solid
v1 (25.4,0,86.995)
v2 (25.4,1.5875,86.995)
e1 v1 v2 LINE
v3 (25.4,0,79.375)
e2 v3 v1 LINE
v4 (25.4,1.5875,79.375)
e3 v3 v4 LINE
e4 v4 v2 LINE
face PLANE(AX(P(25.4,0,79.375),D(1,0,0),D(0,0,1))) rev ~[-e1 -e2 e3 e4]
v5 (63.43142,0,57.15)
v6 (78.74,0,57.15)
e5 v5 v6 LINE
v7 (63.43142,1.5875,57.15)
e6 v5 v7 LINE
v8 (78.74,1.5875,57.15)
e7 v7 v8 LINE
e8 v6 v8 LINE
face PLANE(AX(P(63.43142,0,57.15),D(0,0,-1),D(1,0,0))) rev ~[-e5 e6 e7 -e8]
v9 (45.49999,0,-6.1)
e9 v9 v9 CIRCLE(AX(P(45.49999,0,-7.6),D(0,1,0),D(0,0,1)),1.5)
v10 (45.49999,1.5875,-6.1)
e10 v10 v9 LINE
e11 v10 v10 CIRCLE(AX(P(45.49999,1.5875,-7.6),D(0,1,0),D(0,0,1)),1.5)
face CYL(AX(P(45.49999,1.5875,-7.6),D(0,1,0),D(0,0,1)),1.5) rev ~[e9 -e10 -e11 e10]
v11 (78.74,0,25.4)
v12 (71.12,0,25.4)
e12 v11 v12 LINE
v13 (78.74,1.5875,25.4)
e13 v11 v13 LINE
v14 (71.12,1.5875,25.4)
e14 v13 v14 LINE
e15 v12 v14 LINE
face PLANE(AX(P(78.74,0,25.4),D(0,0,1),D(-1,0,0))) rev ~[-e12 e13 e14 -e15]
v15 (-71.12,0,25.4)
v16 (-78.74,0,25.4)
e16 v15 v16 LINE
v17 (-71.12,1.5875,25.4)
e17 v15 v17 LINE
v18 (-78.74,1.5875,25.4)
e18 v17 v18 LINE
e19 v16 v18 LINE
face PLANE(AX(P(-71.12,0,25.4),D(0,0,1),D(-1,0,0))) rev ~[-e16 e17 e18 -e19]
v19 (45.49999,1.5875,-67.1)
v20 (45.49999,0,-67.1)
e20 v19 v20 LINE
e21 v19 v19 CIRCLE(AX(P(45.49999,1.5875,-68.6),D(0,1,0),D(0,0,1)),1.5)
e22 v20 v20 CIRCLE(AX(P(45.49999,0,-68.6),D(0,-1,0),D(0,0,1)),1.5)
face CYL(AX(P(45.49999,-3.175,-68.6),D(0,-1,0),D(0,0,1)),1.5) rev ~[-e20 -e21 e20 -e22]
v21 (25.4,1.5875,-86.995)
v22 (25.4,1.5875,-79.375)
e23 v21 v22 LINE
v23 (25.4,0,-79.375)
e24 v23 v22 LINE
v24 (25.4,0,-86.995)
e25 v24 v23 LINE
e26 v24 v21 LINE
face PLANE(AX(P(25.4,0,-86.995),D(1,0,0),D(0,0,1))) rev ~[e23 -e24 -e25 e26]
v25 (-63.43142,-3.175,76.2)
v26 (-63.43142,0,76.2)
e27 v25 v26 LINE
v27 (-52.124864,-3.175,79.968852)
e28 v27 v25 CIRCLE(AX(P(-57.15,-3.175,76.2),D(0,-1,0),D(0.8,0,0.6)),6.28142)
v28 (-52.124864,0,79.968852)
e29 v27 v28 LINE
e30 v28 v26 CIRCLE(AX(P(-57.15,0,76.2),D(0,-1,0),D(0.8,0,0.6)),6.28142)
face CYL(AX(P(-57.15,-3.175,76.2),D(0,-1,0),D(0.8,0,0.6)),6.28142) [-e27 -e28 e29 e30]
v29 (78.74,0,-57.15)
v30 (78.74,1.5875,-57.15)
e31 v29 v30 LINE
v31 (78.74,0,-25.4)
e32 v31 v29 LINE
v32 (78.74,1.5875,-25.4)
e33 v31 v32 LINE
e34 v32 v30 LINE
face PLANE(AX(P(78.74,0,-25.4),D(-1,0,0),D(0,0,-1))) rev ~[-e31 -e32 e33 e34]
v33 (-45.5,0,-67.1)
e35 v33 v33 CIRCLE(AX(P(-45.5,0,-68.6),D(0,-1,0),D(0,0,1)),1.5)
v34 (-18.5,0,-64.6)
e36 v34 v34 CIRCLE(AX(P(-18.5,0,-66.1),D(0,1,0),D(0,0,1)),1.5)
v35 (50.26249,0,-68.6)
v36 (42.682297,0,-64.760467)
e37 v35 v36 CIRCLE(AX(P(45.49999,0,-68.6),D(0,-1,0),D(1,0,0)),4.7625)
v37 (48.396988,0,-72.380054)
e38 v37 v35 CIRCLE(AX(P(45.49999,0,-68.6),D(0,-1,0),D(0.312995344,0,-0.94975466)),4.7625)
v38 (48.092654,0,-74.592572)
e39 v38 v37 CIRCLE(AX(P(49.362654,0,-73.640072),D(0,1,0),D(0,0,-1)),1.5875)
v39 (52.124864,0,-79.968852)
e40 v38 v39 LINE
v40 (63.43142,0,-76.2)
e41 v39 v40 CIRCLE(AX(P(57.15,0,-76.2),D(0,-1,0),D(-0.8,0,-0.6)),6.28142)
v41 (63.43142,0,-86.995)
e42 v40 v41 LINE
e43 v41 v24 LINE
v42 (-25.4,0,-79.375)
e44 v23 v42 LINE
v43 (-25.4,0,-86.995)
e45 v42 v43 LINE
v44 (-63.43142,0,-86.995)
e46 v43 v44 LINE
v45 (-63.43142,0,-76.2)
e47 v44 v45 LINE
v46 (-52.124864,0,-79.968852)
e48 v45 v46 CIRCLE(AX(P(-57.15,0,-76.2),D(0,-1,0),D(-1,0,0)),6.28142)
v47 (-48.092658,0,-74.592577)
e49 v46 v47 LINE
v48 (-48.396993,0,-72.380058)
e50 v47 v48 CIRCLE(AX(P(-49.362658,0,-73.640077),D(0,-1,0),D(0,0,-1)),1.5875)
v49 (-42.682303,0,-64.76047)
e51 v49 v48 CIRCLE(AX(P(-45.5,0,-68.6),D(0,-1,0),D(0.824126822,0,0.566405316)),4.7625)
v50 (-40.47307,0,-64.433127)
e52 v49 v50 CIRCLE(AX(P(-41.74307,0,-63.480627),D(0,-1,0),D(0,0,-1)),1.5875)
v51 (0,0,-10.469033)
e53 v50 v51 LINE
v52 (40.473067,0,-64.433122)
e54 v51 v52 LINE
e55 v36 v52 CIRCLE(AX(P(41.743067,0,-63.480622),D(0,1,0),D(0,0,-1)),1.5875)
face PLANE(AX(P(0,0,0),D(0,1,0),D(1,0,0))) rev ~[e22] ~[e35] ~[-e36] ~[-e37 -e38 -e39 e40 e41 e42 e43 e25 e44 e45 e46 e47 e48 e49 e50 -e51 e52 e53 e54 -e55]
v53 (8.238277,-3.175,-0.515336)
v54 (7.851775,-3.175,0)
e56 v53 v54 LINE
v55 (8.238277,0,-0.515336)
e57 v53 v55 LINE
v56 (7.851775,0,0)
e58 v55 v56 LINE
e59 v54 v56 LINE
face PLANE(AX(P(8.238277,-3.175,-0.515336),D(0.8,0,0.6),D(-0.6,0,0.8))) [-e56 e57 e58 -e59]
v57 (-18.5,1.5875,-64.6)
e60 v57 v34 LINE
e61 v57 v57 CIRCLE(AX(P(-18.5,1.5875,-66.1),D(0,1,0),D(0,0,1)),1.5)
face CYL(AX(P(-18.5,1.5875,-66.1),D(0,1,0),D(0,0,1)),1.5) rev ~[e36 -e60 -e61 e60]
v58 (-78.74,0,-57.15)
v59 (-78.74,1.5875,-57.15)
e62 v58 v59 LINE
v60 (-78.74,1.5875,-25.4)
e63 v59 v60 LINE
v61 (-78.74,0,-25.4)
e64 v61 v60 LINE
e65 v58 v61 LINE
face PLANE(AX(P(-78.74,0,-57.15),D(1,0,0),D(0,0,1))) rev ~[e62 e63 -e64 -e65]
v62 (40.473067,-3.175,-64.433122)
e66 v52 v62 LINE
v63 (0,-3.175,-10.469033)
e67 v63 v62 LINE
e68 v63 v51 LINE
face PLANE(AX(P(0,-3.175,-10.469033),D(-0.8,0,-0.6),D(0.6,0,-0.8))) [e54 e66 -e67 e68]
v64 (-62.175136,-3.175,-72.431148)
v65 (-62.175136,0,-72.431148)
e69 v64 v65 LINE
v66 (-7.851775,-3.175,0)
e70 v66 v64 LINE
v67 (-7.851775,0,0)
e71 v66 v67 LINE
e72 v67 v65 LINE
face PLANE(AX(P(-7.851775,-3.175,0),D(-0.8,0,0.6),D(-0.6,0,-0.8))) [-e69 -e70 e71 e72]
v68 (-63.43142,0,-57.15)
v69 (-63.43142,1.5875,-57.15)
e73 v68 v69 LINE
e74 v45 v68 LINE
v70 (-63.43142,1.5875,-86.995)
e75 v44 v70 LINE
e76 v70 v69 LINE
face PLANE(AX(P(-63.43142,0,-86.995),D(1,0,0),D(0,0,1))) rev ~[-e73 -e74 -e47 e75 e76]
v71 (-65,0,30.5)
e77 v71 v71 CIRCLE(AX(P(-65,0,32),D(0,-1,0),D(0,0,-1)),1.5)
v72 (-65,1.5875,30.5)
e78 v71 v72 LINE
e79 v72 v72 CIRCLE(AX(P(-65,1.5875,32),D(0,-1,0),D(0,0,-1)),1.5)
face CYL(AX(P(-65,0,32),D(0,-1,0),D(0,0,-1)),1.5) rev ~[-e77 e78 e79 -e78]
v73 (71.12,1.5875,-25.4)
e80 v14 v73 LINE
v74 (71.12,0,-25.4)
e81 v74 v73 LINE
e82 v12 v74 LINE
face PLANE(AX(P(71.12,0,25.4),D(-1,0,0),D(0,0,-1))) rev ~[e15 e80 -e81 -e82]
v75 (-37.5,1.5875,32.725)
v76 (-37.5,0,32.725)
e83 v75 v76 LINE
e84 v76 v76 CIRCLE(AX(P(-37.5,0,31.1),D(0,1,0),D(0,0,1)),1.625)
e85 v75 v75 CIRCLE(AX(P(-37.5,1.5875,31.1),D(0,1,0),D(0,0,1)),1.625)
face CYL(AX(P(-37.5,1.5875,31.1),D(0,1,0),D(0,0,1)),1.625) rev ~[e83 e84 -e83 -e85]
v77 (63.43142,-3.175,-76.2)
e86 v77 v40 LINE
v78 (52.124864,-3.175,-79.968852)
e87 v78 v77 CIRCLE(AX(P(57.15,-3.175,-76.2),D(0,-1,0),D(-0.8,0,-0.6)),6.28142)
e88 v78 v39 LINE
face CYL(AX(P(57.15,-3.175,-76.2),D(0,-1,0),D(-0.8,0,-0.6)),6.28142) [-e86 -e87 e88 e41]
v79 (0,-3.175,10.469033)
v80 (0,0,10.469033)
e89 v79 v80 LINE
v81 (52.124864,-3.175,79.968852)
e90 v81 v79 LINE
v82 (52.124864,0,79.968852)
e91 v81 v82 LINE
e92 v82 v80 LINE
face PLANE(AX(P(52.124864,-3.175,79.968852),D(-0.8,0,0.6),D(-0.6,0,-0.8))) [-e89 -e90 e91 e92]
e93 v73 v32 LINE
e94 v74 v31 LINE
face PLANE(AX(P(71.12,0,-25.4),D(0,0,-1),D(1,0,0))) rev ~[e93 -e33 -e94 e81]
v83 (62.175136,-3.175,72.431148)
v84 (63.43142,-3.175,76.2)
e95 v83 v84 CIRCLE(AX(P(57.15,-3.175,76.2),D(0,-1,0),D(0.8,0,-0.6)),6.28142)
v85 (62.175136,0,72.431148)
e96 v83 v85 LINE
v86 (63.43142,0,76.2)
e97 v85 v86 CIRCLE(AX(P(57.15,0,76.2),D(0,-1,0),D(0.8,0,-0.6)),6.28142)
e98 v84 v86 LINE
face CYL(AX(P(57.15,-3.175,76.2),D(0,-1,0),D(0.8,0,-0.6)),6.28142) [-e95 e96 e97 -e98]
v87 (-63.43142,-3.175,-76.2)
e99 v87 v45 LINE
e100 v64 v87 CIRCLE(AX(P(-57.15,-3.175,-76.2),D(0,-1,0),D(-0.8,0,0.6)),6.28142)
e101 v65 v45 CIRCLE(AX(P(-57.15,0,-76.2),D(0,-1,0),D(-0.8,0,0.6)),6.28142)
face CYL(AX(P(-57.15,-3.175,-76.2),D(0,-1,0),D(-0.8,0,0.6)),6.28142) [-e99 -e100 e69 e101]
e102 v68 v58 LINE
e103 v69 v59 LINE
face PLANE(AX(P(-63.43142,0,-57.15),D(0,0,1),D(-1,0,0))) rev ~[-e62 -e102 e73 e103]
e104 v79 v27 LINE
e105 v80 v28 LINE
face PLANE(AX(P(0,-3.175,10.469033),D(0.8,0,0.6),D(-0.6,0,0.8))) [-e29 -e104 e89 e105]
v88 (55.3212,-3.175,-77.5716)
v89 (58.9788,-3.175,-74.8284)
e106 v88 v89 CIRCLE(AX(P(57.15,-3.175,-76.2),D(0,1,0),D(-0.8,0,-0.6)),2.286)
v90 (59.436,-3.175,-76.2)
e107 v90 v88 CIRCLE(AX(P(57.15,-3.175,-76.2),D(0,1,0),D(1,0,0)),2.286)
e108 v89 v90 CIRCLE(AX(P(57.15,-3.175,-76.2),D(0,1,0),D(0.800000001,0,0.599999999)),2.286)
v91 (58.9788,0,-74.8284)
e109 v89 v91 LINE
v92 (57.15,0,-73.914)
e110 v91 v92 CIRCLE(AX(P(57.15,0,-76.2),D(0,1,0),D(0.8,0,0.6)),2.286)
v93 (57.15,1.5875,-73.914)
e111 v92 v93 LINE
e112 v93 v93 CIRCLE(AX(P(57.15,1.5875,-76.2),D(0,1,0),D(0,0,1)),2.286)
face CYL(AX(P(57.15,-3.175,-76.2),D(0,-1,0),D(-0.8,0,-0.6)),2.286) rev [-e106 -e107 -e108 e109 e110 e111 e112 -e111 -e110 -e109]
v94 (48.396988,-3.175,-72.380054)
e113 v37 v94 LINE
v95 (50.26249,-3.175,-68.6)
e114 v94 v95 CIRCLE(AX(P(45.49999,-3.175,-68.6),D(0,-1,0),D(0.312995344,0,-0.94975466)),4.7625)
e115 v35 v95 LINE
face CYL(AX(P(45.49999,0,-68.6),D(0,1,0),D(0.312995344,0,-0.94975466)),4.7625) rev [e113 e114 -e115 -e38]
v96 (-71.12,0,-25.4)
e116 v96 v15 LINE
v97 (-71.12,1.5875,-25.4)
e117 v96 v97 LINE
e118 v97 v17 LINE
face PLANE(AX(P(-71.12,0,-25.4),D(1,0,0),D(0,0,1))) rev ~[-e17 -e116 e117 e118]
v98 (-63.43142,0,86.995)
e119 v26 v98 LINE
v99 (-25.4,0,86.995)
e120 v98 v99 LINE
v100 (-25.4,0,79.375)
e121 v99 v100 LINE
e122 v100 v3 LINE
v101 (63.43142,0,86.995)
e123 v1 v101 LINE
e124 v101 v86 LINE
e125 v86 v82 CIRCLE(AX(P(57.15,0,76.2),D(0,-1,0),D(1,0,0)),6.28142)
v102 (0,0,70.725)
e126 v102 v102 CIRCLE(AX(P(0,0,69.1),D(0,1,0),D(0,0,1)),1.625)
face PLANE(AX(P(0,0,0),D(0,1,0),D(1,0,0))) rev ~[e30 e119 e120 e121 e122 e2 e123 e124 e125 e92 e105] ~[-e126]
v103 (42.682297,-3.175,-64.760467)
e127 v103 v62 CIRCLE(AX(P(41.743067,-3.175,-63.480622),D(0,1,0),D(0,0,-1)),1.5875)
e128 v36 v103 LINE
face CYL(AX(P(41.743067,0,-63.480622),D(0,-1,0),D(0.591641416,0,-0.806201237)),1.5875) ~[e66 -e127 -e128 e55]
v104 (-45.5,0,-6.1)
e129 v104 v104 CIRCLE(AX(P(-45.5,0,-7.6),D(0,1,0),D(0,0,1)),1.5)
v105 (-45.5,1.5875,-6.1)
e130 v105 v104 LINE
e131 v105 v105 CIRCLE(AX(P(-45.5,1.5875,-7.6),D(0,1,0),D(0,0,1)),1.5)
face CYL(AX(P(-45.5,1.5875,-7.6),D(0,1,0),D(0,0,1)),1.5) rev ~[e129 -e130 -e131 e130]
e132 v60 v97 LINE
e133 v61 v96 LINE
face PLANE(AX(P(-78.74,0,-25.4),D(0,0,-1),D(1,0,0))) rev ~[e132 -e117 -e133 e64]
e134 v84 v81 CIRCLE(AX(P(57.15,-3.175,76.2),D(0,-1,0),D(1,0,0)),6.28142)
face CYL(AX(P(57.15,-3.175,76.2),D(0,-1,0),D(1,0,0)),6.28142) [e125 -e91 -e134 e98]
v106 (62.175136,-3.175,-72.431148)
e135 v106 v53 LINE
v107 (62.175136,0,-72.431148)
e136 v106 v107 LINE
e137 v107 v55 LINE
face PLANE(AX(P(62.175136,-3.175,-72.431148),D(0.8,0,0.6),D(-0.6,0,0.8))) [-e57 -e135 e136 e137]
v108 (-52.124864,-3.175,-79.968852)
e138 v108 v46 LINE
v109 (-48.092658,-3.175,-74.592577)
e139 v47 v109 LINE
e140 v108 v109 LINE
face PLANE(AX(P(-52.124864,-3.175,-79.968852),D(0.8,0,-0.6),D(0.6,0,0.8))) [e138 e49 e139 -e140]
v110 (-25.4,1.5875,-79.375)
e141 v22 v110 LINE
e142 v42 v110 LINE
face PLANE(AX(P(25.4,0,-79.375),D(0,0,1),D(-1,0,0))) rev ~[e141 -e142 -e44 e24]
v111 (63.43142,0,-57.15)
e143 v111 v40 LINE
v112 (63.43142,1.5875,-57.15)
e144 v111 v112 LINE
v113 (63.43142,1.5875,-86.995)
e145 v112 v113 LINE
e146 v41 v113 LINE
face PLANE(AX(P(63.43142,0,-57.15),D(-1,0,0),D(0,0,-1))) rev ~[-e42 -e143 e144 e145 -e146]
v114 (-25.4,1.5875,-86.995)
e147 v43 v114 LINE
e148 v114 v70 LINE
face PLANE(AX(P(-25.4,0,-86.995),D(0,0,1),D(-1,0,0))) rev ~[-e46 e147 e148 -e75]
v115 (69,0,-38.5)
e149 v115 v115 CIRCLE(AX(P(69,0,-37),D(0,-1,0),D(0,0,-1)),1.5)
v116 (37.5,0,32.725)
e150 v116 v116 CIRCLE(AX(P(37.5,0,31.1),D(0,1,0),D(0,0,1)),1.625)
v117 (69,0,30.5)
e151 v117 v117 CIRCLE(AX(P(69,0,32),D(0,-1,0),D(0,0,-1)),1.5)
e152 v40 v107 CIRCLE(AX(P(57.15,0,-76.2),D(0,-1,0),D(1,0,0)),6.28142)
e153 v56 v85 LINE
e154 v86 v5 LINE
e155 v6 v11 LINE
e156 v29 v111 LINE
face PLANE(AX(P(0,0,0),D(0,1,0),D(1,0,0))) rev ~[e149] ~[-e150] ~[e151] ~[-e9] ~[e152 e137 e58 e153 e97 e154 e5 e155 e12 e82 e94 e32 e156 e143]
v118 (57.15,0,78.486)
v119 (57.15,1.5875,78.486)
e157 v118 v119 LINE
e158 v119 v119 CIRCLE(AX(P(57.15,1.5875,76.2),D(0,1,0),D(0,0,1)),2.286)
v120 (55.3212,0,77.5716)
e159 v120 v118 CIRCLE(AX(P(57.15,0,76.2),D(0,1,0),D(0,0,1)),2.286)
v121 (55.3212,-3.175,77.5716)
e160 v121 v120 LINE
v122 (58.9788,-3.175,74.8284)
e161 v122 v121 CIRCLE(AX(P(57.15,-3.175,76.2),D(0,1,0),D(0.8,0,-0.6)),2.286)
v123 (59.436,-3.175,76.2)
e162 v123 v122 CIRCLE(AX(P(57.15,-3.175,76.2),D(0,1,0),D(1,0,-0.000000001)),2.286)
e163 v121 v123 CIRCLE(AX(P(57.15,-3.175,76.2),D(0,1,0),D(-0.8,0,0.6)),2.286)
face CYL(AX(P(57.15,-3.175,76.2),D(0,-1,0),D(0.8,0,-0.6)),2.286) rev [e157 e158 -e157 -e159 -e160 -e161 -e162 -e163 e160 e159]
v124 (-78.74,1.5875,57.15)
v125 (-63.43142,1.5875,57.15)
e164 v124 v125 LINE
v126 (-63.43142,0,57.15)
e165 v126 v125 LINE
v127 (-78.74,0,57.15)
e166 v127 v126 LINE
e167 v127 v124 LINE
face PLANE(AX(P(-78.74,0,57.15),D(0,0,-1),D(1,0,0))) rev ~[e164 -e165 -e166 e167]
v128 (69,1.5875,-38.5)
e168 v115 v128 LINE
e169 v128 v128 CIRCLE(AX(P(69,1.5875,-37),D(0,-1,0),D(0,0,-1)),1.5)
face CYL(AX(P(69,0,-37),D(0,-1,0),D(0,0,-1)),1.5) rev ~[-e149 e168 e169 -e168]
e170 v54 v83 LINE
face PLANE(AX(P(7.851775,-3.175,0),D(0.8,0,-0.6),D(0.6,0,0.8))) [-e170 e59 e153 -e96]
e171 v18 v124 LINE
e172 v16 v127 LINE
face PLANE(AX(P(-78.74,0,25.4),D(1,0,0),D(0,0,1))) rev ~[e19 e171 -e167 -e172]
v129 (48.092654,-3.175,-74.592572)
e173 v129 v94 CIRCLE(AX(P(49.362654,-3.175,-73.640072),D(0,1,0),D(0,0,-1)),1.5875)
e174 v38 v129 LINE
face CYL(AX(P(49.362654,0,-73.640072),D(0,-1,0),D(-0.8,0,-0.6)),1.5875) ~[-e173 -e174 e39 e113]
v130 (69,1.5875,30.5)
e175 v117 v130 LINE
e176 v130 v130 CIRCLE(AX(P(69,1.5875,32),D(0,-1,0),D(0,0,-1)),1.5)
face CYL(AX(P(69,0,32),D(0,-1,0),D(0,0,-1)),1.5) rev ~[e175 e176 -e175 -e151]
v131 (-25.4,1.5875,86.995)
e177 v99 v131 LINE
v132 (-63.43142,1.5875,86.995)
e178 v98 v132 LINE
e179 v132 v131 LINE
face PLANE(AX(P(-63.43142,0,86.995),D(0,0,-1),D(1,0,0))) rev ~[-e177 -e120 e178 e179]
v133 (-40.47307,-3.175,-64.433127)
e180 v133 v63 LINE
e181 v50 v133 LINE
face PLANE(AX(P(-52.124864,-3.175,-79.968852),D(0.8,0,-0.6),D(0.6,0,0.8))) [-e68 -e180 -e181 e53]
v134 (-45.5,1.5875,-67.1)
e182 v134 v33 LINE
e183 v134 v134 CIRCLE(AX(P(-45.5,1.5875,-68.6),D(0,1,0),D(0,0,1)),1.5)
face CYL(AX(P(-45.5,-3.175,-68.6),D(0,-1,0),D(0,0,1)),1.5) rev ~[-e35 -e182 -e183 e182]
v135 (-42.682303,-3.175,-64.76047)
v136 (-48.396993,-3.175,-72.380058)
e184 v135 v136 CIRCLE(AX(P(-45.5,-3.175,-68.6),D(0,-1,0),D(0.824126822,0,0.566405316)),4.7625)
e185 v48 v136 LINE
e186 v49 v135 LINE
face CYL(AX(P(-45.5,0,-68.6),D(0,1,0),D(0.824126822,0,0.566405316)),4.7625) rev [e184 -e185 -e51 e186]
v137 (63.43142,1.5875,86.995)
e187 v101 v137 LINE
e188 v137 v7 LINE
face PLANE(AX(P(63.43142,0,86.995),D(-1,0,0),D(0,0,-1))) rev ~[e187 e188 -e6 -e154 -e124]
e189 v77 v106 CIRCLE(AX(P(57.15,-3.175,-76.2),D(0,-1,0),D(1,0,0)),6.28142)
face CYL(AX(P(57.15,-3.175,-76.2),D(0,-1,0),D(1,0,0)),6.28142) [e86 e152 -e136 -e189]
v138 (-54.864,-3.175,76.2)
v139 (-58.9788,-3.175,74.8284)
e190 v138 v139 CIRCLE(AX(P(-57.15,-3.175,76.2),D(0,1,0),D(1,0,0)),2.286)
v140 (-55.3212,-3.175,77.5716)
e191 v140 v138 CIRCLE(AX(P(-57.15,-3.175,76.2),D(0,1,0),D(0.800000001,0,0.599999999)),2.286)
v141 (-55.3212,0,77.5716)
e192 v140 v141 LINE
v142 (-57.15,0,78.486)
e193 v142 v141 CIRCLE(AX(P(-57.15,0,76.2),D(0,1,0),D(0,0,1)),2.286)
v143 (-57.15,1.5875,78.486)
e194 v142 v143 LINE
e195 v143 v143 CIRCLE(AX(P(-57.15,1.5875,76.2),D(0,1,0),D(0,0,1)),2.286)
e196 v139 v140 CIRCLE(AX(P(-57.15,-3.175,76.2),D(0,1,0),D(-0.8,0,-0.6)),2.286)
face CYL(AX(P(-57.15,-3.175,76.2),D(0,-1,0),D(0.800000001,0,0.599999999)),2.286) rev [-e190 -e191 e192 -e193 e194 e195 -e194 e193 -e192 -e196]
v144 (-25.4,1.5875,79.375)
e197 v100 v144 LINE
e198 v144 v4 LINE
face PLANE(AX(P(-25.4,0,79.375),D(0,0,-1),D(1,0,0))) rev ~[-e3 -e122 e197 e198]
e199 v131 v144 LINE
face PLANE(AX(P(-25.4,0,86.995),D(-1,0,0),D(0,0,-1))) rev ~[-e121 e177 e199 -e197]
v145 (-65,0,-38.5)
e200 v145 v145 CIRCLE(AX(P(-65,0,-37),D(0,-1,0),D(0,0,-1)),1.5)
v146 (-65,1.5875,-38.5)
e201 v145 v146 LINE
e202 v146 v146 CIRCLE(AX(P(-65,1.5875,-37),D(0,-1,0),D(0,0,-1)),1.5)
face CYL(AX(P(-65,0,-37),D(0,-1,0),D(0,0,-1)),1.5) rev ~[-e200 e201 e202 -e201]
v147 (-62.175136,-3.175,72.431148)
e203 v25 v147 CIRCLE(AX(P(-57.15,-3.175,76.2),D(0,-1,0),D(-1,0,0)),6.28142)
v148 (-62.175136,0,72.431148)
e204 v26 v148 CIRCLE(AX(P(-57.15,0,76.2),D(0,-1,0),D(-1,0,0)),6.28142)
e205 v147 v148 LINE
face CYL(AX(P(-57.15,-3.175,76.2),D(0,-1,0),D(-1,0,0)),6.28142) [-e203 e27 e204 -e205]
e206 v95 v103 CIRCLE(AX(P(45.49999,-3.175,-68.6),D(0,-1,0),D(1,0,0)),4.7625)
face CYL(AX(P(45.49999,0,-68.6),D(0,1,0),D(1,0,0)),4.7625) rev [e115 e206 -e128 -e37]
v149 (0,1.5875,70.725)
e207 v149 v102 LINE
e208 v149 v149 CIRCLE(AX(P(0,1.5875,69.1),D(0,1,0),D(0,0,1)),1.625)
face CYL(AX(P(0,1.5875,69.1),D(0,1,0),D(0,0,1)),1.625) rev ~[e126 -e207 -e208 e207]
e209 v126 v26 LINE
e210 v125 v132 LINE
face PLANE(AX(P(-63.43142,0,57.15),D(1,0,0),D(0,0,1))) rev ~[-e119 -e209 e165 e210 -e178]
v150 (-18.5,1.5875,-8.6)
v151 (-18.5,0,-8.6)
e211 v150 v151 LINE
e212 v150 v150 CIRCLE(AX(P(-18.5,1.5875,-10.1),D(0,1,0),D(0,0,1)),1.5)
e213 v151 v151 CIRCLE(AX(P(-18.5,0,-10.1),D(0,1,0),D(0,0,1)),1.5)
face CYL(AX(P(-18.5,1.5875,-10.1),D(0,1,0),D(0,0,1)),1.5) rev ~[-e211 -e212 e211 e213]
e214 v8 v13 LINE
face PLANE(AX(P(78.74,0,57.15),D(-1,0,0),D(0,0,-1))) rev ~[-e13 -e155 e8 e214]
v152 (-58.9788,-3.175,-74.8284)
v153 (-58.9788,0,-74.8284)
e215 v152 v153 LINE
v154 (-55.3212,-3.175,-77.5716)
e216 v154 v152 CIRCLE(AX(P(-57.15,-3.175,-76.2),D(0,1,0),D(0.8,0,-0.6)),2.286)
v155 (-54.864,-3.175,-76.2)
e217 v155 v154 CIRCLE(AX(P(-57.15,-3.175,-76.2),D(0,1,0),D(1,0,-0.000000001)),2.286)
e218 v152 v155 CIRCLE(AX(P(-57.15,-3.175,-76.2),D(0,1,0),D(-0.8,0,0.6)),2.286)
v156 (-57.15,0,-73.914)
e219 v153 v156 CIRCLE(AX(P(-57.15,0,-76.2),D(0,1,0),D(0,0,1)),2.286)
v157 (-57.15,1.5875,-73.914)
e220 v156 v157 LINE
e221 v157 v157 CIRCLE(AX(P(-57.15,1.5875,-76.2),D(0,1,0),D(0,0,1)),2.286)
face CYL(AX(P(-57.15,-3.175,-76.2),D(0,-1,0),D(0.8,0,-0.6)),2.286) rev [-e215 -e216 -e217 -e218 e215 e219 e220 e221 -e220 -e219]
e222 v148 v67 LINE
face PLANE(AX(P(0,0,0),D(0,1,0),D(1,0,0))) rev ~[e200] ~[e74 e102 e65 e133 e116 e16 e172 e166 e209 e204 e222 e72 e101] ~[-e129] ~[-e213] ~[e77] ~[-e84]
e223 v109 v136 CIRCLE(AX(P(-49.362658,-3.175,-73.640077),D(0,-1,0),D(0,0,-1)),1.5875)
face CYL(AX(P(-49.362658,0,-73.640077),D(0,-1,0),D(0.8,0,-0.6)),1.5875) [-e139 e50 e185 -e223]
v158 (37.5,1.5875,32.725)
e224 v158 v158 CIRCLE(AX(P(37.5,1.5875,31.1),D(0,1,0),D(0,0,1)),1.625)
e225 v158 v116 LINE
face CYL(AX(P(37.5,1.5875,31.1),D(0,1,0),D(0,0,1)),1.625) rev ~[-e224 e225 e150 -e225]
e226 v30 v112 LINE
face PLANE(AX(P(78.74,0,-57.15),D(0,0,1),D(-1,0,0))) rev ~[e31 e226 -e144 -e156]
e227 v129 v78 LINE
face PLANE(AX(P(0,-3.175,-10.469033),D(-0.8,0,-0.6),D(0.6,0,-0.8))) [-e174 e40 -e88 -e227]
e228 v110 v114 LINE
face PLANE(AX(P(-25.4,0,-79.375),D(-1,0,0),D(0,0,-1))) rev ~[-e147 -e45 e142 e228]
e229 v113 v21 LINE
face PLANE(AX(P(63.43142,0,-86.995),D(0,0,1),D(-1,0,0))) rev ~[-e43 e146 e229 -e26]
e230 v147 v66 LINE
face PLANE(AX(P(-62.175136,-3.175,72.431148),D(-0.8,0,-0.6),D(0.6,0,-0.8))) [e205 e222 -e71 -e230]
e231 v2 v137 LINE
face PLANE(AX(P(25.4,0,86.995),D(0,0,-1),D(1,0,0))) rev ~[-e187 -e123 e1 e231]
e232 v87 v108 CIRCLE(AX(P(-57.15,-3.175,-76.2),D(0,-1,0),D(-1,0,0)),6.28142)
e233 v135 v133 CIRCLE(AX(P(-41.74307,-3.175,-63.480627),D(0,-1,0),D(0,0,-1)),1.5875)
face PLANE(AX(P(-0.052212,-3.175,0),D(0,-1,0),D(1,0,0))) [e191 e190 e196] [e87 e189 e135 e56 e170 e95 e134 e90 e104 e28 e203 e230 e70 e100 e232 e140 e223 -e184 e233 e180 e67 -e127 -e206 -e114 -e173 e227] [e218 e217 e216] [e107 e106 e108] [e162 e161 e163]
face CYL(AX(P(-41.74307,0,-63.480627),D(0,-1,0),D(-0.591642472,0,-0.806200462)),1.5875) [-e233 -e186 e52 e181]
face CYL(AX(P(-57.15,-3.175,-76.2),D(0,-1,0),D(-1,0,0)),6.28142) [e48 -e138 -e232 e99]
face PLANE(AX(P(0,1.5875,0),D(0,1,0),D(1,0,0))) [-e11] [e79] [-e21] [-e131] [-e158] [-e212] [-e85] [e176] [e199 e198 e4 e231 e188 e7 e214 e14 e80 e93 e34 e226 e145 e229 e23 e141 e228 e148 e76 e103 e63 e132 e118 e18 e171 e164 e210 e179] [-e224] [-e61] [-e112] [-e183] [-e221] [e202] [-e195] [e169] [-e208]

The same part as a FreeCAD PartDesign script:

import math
import FreeCAD as App
import Part
import Sketcher

V = App.Vector
Q = App.Units.Quantity


def edges_at(feature, points):
    """Names of the edges that pass closest to the given points."""
    edges = feature.Shape.Edges
    near = lambda p: min(range(len(edges)), key=lambda i: edges[i].distToShape(Part.Vertex(*p))[0])
    return sorted({f"Edge{near(p) + 1}" for p in points})


def add_polygon(sketch, points):
    """Adds a closed chain of lines whose ends are joined by coincident constraints."""
    first, n = sketch.GeometryCount, len(points)
    for a, b in zip(points, points[1:] + points[:1]):
        sketch.addGeometry(Part.LineSegment(App.Vector(*a, 0), App.Vector(*b, 0)), False)
    for i in range(n):
        sketch.addConstraint(Sketcher.Constraint("Coincident", first + i, 2, first + (i + 1) % n, 1))

doc = App.newDocument("Part")
params = doc.addObject("Spreadsheet::Sheet", "Params")
for row, (alias, value) in enumerate([
    ("sketch1_diameter", "0.18 in"),
    ("sketch1_width", "2 in"),
    ("sketch1_width2", "0.3 in"),
    ("sketch1_height", "1.25 in"),
    ("sketch1_height2", "1.175 in"),
    ("pad1_length", "0.0625 in"),
    ("sketch15_radius", "0.09 in"),
    ("pad2_length", "0.125 in"),
    ("sketch16_radius", "0.1875 in"),
    ("pocket14_length", "0.125 in"),
    ("fillet_radius", "0.0625 in"),
], start=1):
    params.set(f"A{row}", alias)
    params.set(f"B{row}", "=" + value)
    params.setAlias(f"B{row}", alias)

body = doc.addObject("PartDesign::Body", "Body")

# Sketch on XZ plane
sketch1 = body.newObject("Sketcher::SketchObject", "Sketch")
sketch1.AttachmentSupport = (doc.getObject("XZ_Plane"), [""])
sketch1.MapMode = "FlatFace"
add_polygon(sketch1, [(-25.4, -79.4), (-25.4, -87), (-63.4, -87), (-63.4, -57.1), (-78.7, -57.1), (-78.7, -25.4), (-71.1, -25.4), (-71.1, 25.4), (-78.7, 25.4), (-78.7, 57.1), (-63.4, 57.1), (-63.4, 87), (-25.4, 87), (-25.4, 79.4), (25.4, 79.4), (25.4, 87), (63.4, 87), (63.4, 57.1), (78.7, 57.1), (78.7, 25.4), (71.1, 25.4), (71.1, -25.4), (78.7, -25.4), (78.7, -57.1), (63.4, -57.1), (63.4, -87), (25.4, -87), (25.4, -79.4)])  # lines 0-27
sketch1.addGeometry(Part.Circle(V(-57.1, 76.2, 0), V(0, 0, 1), 2.3), False)  # 28
sketch1.addGeometry(Part.Circle(V(57.1, 76.2, 0), V(0, 0, 1), 2.3), False)  # 29
sketch1.addGeometry(Part.Circle(V(-57.1, -76.2, 0), V(0, 0, 1), 2.3), False)  # 30
sketch1.addGeometry(Part.Circle(V(57.1, -76.2, 0), V(0, 0, 1), 2.3), False)  # 31
sketch1.addConstraint([
    Sketcher.Constraint("Vertical", 0),
    Sketcher.Constraint("Horizontal", 1),
    Sketcher.Constraint("Vertical", 2),
    Sketcher.Constraint("Horizontal", 3),
    Sketcher.Constraint("Vertical", 4),
    Sketcher.Constraint("Horizontal", 5),
    Sketcher.Constraint("Vertical", 6),
    Sketcher.Constraint("Horizontal", 7),
    Sketcher.Constraint("Vertical", 8),
    Sketcher.Constraint("Horizontal", 9),
    Sketcher.Constraint("Vertical", 10),
    Sketcher.Constraint("Horizontal", 11),
    Sketcher.Constraint("Vertical", 12),
    Sketcher.Constraint("Horizontal", 13),
    Sketcher.Constraint("Vertical", 14),
    Sketcher.Constraint("Horizontal", 15),
    Sketcher.Constraint("Vertical", 16),
    Sketcher.Constraint("Horizontal", 17),
    Sketcher.Constraint("Vertical", 18),
    Sketcher.Constraint("Horizontal", 19),
    Sketcher.Constraint("Vertical", 20),
    Sketcher.Constraint("Horizontal", 21),
    Sketcher.Constraint("Vertical", 22),
    Sketcher.Constraint("Horizontal", 23),
    Sketcher.Constraint("Vertical", 24),
    Sketcher.Constraint("Horizontal", 25),
    Sketcher.Constraint("Vertical", 26),
    Sketcher.Constraint("Horizontal", 27),
    Sketcher.Constraint("Equal", 28, 29),
    Sketcher.Constraint("Equal", 29, 30),
    Sketcher.Constraint("Equal", 30, 31),
    Sketcher.Constraint("Symmetric", 29, 3, 30, 3, -1, 1),
    Sketcher.Constraint("Symmetric", 28, 3, 31, 3, -1, 1),
    Sketcher.Constraint("Symmetric", 0, 2, 14, 2, -1, 1),
    Sketcher.Constraint("Symmetric", 2, 2, 16, 2, -1, 1),
    Sketcher.Constraint("Symmetric", 4, 2, 18, 2, -1, 1),
    Sketcher.Constraint("Symmetric", 6, 2, 20, 2, -1, 1),
    Sketcher.Constraint("Symmetric", 8, 2, 22, 2, -1, 1),
    Sketcher.Constraint("Symmetric", 10, 2, 24, 2, -1, 1),
    Sketcher.Constraint("Symmetric", 12, 2, 26, 2, -1, 1),
    Sketcher.Constraint("Symmetric", 28, 3, 29, 3, -2),
    Sketcher.Constraint("Symmetric", 11, 2, 14, 2, -2),
    Sketcher.Constraint("Symmetric", 9, 2, 16, 2, -2),
    Sketcher.Constraint("Symmetric", 7, 2, 18, 2, -2),
    Sketcher.Constraint("Equal", 21, 0),
    Sketcher.Constraint("Equal", 27, 6),
    Sketcher.Constraint("Diameter", 28, Q("0.18 in")),
    Sketcher.Constraint("DistanceX", 13, 1, 13, 2, Q("2 in")),
    Sketcher.Constraint("DistanceX", 5, 1, 5, 2, Q("0.3 in")),
    Sketcher.Constraint("DistanceY", -1, 1, 28, 3, Q("3 in")),
    Sketcher.Constraint("DistanceY", 4, 1, 4, 2, Q("1.25 in")),
    Sketcher.Constraint("DistanceX", 3, 2, -1, 1, Q("3.1 in")),
    Sketcher.Constraint("DistanceX", 28, 3, 29, 3, Q("4.5 in")),
    Sketcher.Constraint("DistanceY", 2, 1, 2, 2, Q("1.175 in")),
    Sketcher.Constraint("DistanceX", 1, 2, 1, 1, Q("1.4973 in")),
])
sketch1.setExpression("Constraints[74]", "Params.sketch1_diameter")
sketch1.setExpression("Constraints[75]", "Params.sketch1_width")
sketch1.setExpression("Constraints[76]", "Params.sketch1_width2")
sketch1.setExpression("Constraints[78]", "Params.sketch1_height")
sketch1.setExpression("Constraints[81]", "Params.sketch1_height2")
pad1 = body.newObject("PartDesign::Pad", "Pad")
pad1.Profile = sketch1
pad1.setExpression("Length", "Params.pad1_length")
pad1.Reversed = True

# Sketch on XZ plane
sketch2 = body.newObject("Sketcher::SketchObject", "Sketch001")
sketch2.AttachmentSupport = (doc.getObject("XZ_Plane"), [""])
sketch2.MapMode = "FlatFace"
sketch2.addGeometry(Part.Circle(V(69, -37, 0), V(0, 0, 1), 1.5), False)
sketch2.addConstraint([
    Sketcher.Constraint("Diameter", 0, Q("3 mm")),
    Sketcher.Constraint("DistanceX", -1, 1, 0, 3, Q("69 mm")),
    Sketcher.Constraint("DistanceY", 0, 3, -1, 1, Q("37 mm")),
])
pocket1 = body.newObject("PartDesign::Pocket", "Pocket")
pocket1.Profile = sketch2
pocket1.Type = "UpToFirst"

# Sketch on XZ plane
sketch3 = body.newObject("Sketcher::SketchObject", "Sketch002")
sketch3.AttachmentSupport = (doc.getObject("XZ_Plane"), [""])
sketch3.MapMode = "FlatFace"
sketch3.addGeometry(Part.Circle(V(-65, -37, 0), V(0, 0, 1), 1.5), False)
sketch3.addConstraint([
    Sketcher.Constraint("Diameter", 0, Q("3 mm")),
    Sketcher.Constraint("DistanceX", 0, 3, -1, 1, Q("65 mm")),
    Sketcher.Constraint("DistanceY", 0, 3, -1, 1, Q("37 mm")),
])
pocket2 = body.newObject("PartDesign::Pocket", "Pocket001")
pocket2.Profile = sketch3
pocket2.Type = "UpToFirst"

# Sketch on XZ plane
sketch4 = body.newObject("Sketcher::SketchObject", "Sketch003")
sketch4.AttachmentSupport = (doc.getObject("XZ_Plane"), [""])
sketch4.MapMode = "FlatFace"
sketch4.addGeometry(Part.Circle(V(-65, 32, 0), V(0, 0, 1), 1.5), False)
sketch4.addConstraint([
    Sketcher.Constraint("Diameter", 0, Q("3 mm")),
    Sketcher.Constraint("DistanceX", 0, 3, -1, 1, Q("65 mm")),
    Sketcher.Constraint("DistanceY", -1, 1, 0, 3, Q("32 mm")),
])
pocket3 = body.newObject("PartDesign::Pocket", "Pocket002")
pocket3.Profile = sketch4
pocket3.Type = "UpToFirst"

# Sketch on XZ plane
sketch5 = body.newObject("Sketcher::SketchObject", "Sketch004")
sketch5.AttachmentSupport = (doc.getObject("XZ_Plane"), [""])
sketch5.MapMode = "FlatFace"
sketch5.addGeometry(Part.Circle(V(69, 32, 0), V(0, 0, 1), 1.5), False)
sketch5.addConstraint([
    Sketcher.Constraint("Diameter", 0, Q("3 mm")),
    Sketcher.Constraint("DistanceX", -1, 1, 0, 3, Q("69 mm")),
    Sketcher.Constraint("DistanceY", -1, 1, 0, 3, Q("32 mm")),
])
pocket4 = body.newObject("PartDesign::Pocket", "Pocket003")
pocket4.Profile = sketch5
pocket4.Type = "UpToFirst"

# Sketch on XZ plane
sketch6 = body.newObject("Sketcher::SketchObject", "Sketch005")
sketch6.AttachmentSupport = (doc.getObject("XZ_Plane"), [""])
sketch6.MapMode = "FlatFace"
sketch6.AttachmentOffset = App.Placement(V(0, 0, -0.0625 * 25.4), App.Rotation())
sketch6.addGeometry(Part.Circle(V(-18.5, -66.1, 0), V(0, 0, 1), 1.5), False)
sketch6.addConstraint([
    Sketcher.Constraint("Diameter", 0, Q("3 mm")),
    Sketcher.Constraint("DistanceX", 0, 3, -1, 1, Q("18.5 mm")),
    Sketcher.Constraint("DistanceY", 0, 3, -1, 1, Q("66.1 mm")),
])
pocket5 = body.newObject("PartDesign::Pocket", "Pocket004")
pocket5.Profile = sketch6
pocket5.Type = "UpToFirst"
pocket5.Reversed = True

# Sketch on XZ plane
sketch7 = body.newObject("Sketcher::SketchObject", "Sketch006")
sketch7.AttachmentSupport = (doc.getObject("XZ_Plane"), [""])
sketch7.MapMode = "FlatFace"
sketch7.AttachmentOffset = App.Placement(V(0, 0, -0.0625 * 25.4), App.Rotation())
sketch7.addGeometry(Part.Circle(V(45.5, -68.6, 0), V(0, 0, 1), 1.5), False)
sketch7.addConstraint([
    Sketcher.Constraint("Diameter", 0, Q("3 mm")),
    Sketcher.Constraint("DistanceY", 0, 3, -1, 1, Q("68.6 mm")),
    Sketcher.Constraint("DistanceX", -1, 1, 0, 3, Q("45.49999 mm")),
])
pocket6 = body.newObject("PartDesign::Pocket", "Pocket005")
pocket6.Profile = sketch7
pocket6.Type = "UpToFirst"
pocket6.Reversed = True

# Sketch on XZ plane
sketch8 = body.newObject("Sketcher::SketchObject", "Sketch007")
sketch8.AttachmentSupport = (doc.getObject("XZ_Plane"), [""])
sketch8.MapMode = "FlatFace"
sketch8.AttachmentOffset = App.Placement(V(0, 0, -0.0625 * 25.4), App.Rotation())
sketch8.addGeometry(Part.Circle(V(45.5, -7.6, 0), V(0, 0, 1), 1.5), False)
sketch8.addConstraint([
    Sketcher.Constraint("Diameter", 0, Q("3 mm")),
    Sketcher.Constraint("DistanceY", 0, 3, -1, 1, Q("7.6 mm")),
    Sketcher.Constraint("DistanceX", -1, 1, 0, 3, Q("45.49999 mm")),
])
pocket7 = body.newObject("PartDesign::Pocket", "Pocket006")
pocket7.Profile = sketch8
pocket7.Type = "UpToFirst"
pocket7.Reversed = True

# Sketch on XZ plane
sketch9 = body.newObject("Sketcher::SketchObject", "Sketch008")
sketch9.AttachmentSupport = (doc.getObject("XZ_Plane"), [""])
sketch9.MapMode = "FlatFace"
sketch9.AttachmentOffset = App.Placement(V(0, 0, -0.0625 * 25.4), App.Rotation())
sketch9.addGeometry(Part.Circle(V(-18.5, -10.1, 0), V(0, 0, 1), 1.5), False)
sketch9.addConstraint([
    Sketcher.Constraint("Diameter", 0, Q("3 mm")),
    Sketcher.Constraint("DistanceX", 0, 3, -1, 1, Q("18.5 mm")),
    Sketcher.Constraint("DistanceY", 0, 3, -1, 1, Q("10.1 mm")),
])
pocket8 = body.newObject("PartDesign::Pocket", "Pocket007")
pocket8.Profile = sketch9
pocket8.Type = "UpToFirst"
pocket8.Reversed = True

# Sketch on XZ plane
sketch10 = body.newObject("Sketcher::SketchObject", "Sketch009")
sketch10.AttachmentSupport = (doc.getObject("XZ_Plane"), [""])
sketch10.MapMode = "FlatFace"
sketch10.AttachmentOffset = App.Placement(V(0, 0, -0.0625 * 25.4), App.Rotation())
sketch10.addGeometry(Part.Circle(V(-45.5, -68.6, 0), V(0, 0, 1), 1.5), False)
sketch10.addConstraint([
    Sketcher.Constraint("Diameter", 0, Q("3 mm")),
    Sketcher.Constraint("DistanceX", 0, 3, -1, 1, Q("45.5 mm")),
    Sketcher.Constraint("DistanceY", 0, 3, -1, 1, Q("68.6 mm")),
])
pocket9 = body.newObject("PartDesign::Pocket", "Pocket008")
pocket9.Profile = sketch10
pocket9.Type = "UpToFirst"
pocket9.Reversed = True

# Sketch on XZ plane
sketch11 = body.newObject("Sketcher::SketchObject", "Sketch010")
sketch11.AttachmentSupport = (doc.getObject("XZ_Plane"), [""])
sketch11.MapMode = "FlatFace"
sketch11.AttachmentOffset = App.Placement(V(0, 0, -0.0625 * 25.4), App.Rotation())
sketch11.addGeometry(Part.Circle(V(-45.5, -7.6, 0), V(0, 0, 1), 1.5), False)
sketch11.addConstraint([
    Sketcher.Constraint("Diameter", 0, Q("3 mm")),
    Sketcher.Constraint("DistanceX", 0, 3, -1, 1, Q("45.5 mm")),
    Sketcher.Constraint("DistanceY", 0, 3, -1, 1, Q("7.6 mm")),
])
pocket10 = body.newObject("PartDesign::Pocket", "Pocket009")
pocket10.Profile = sketch11
pocket10.Type = "UpToFirst"
pocket10.Reversed = True

# Sketch on XZ plane
sketch12 = body.newObject("Sketcher::SketchObject", "Sketch011")
sketch12.AttachmentSupport = (doc.getObject("XZ_Plane"), [""])
sketch12.MapMode = "FlatFace"
sketch12.AttachmentOffset = App.Placement(V(0, 0, -0.0625 * 25.4), App.Rotation())
sketch12.addGeometry(Part.Circle(V(-37.5, 31.1, 0), V(0, 0, 1), 1.6), False)
sketch12.addConstraint([
    Sketcher.Constraint("Diameter", 0, Q("3.25 mm")),
    Sketcher.Constraint("DistanceX", 0, 3, -1, 1, Q("37.5 mm")),
    Sketcher.Constraint("DistanceY", -1, 1, 0, 3, Q("31.1 mm")),
])
pocket11 = body.newObject("PartDesign::Pocket", "Pocket010")
pocket11.Profile = sketch12
pocket11.Type = "UpToFirst"
pocket11.Reversed = True

# Sketch on XZ plane
sketch13 = body.newObject("Sketcher::SketchObject", "Sketch012")
sketch13.AttachmentSupport = (doc.getObject("XZ_Plane"), [""])
sketch13.MapMode = "FlatFace"
sketch13.AttachmentOffset = App.Placement(V(0, 0, -0.0625 * 25.4), App.Rotation())
sketch13.addGeometry(Part.Circle(V(37.5, 31.1, 0), V(0, 0, 1), 1.6), False)
sketch13.addConstraint([
    Sketcher.Constraint("Diameter", 0, Q("3.25 mm")),
    Sketcher.Constraint("DistanceX", -1, 1, 0, 3, Q("37.5 mm")),
    Sketcher.Constraint("DistanceY", -1, 1, 0, 3, Q("31.1 mm")),
])
pocket12 = body.newObject("PartDesign::Pocket", "Pocket011")
pocket12.Profile = sketch13
pocket12.Type = "UpToFirst"
pocket12.Reversed = True

# Sketch on XZ plane
sketch14 = body.newObject("Sketcher::SketchObject", "Sketch013")
sketch14.AttachmentSupport = (doc.getObject("XZ_Plane"), [""])
sketch14.MapMode = "FlatFace"
sketch14.AttachmentOffset = App.Placement(V(0, 0, -0.0625 * 25.4), App.Rotation())
sketch14.addGeometry(Part.Circle(V(0, 69.1, 0), V(0, 0, 1), 1.6), False)
sketch14.addConstraint([
    Sketcher.Constraint("PointOnObject", 0, 3, -2),
    Sketcher.Constraint("Diameter", 0, Q("3.25 mm")),
    Sketcher.Constraint("DistanceY", -1, 1, 0, 3, Q("69.1 mm")),
])
pocket13 = body.newObject("PartDesign::Pocket", "Pocket012")
pocket13.Profile = sketch14
pocket13.Type = "UpToFirst"
pocket13.Reversed = True

# Sketch on XZ plane
sketch15 = body.newObject("Sketcher::SketchObject", "Sketch014")
sketch15.AttachmentSupport = (doc.getObject("XZ_Plane"), [""])
sketch15.MapMode = "FlatFace"
sketch15.AttachmentOffset = App.Placement(V(0, 0, 0.125 * 25.4), App.Rotation())
sketch15.addGeometry([
    Part.LineSegment(V(-52.1, -80, 0), V(0, -10.5, 0)),  # 0
    Part.LineSegment(V(0, -10.5, 0), V(52.1, -80, 0)),  # 1
    Part.ArcOfCircle(Part.Circle(V(57.1, -76.2, 0), V(0, 0, 1), 6.3), math.radians(-143), math.radians(0)),  # 2
    Part.ArcOfCircle(Part.Circle(V(57.1, -76.2, 0), V(0, 0, 1), 6.3), math.radians(0), math.radians(37)),  # 3
    Part.LineSegment(V(62.2, -72.4, 0), V(8.2, -0.5, 0)),  # 4
    Part.LineSegment(V(8.2, -0.5, 0), V(7.9, 0, 0)),  # 5
    Part.LineSegment(V(7.9, 0, 0), V(62.2, 72.4, 0)),  # 6
    Part.ArcOfCircle(Part.Circle(V(57.1, 76.2, 0), V(0, 0, 1), 6.3), math.radians(-37), math.radians(0)),  # 7
    Part.ArcOfCircle(Part.Circle(V(57.1, 76.2, 0), V(0, 0, 1), 6.3), math.radians(0), math.radians(143)),  # 8
    Part.LineSegment(V(52.1, 80, 0), V(0, 10.5, 0)),  # 9
    Part.LineSegment(V(0, 10.5, 0), V(-52.1, 80, 0)),  # 10
    Part.ArcOfCircle(Part.Circle(V(-57.1, 76.2, 0), V(0, 0, 1), 6.3), math.radians(37), math.radians(180)),  # 11
    Part.ArcOfCircle(Part.Circle(V(-57.1, 76.2, 0), V(0, 0, 1), 6.3), math.radians(180), math.radians(217)),  # 12
    Part.LineSegment(V(-62.2, 72.4, 0), V(-7.9, 0, 0)),  # 13
    Part.LineSegment(V(-7.9, 0, 0), V(-62.2, -72.4, 0)),  # 14
    Part.ArcOfCircle(Part.Circle(V(-57.1, -76.2, 0), V(0, 0, 1), 6.3), math.radians(143), math.radians(180)),  # 15
    Part.ArcOfCircle(Part.Circle(V(-57.1, -76.2, 0), V(0, 0, 1), 6.3), math.radians(180), math.radians(323)),  # 16
    Part.Circle(V(-45.5, -68.6, 0), V(0, 0, 1), 1.5),  # 17
    Part.Circle(V(45.5, -68.6, 0), V(0, 0, 1), 1.5),  # 18
    Part.ArcOfCircle(Part.Circle(V(-57.2, -76.2, 0), V(0, 0, 1), 2.3), math.radians(-37), math.radians(0)),  # 19
    Part.ArcOfCircle(Part.Circle(V(-57.1, -76.2, 0), V(0, 0, 1), 2.3), math.radians(143), math.radians(323)),  # 20
    Part.ArcOfCircle(Part.Circle(V(-57.1, -76.2, 0), V(0, 0, 1), 2.3), math.radians(0), math.radians(143)),  # 21
    Part.ArcOfCircle(Part.Circle(V(57.1, -76.2, 0), V(0, 0, 1), 2.3), math.radians(37), math.radians(217)),  # 22
    Part.ArcOfCircle(Part.Circle(V(57.1, -76.2, 0), V(0, 0, 1), 2.3), math.radians(0), math.radians(37)),  # 23
    Part.ArcOfCircle(Part.Circle(V(57.1, -76.2, 0), V(0, 0, 1), 2.3), math.radians(-143), math.radians(0)),  # 24
    Part.ArcOfCircle(Part.Circle(V(-57.1, 76.2, 0), V(0, 0, 1), 2.3), math.radians(-143), math.radians(0)),  # 25
    Part.ArcOfCircle(Part.Circle(V(-57.1, 76.2, 0), V(0, 0, 1), 2.3), math.radians(37), math.radians(217)),  # 26
    Part.ArcOfCircle(Part.Circle(V(-57.2, 76.2, 0), V(0, 0, 1), 2.3), math.radians(0), math.radians(37)),  # 27
    Part.ArcOfCircle(Part.Circle(V(57.1, 76.2, 0), V(0, 0, 1), 2.3), math.radians(143), math.radians(323)),  # 28
    Part.ArcOfCircle(Part.Circle(V(57.1, 76.2, 0), V(0, 0, 1), 2.3), math.radians(0), math.radians(143)),  # 29
    Part.ArcOfCircle(Part.Circle(V(57.1, 76.2, 0), V(0, 0, 1), 2.3), math.radians(-37), math.radians(0)),  # 30
], False)
sketch15.addConstraint([
    Sketcher.Constraint("Coincident", 0, 2, 1, 1),
    Sketcher.Constraint("Tangent", 1, 2, 2, 1),
    Sketcher.Constraint("Tangent", 2, 2, 3, 1),
    Sketcher.Constraint("Tangent", 3, 2, 4, 1),
    Sketcher.Constraint("Coincident", 4, 2, 5, 1),
    Sketcher.Constraint("Coincident", 5, 2, 6, 1),
    Sketcher.Constraint("Tangent", 6, 2, 7, 1),
    Sketcher.Constraint("Tangent", 7, 2, 8, 1),
    Sketcher.Constraint("Tangent", 8, 2, 9, 1),
    Sketcher.Constraint("Coincident", 9, 2, 10, 1),
    Sketcher.Constraint("Tangent", 10, 2, 11, 1),
    Sketcher.Constraint("Tangent", 11, 2, 12, 1),
    Sketcher.Constraint("Tangent", 12, 2, 13, 1),
    Sketcher.Constraint("Coincident", 13, 2, 14, 1),
    Sketcher.Constraint("Tangent", 14, 2, 15, 1),
    Sketcher.Constraint("Tangent", 15, 2, 16, 1),
    Sketcher.Constraint("Tangent", 16, 2, 0, 1),
    Sketcher.Constraint("Tangent", 19, 1, 20, 2),
    Sketcher.Constraint("Tangent", 20, 1, 21, 2),
    Sketcher.Constraint("Tangent", 21, 1, 19, 2),
    Sketcher.Constraint("Tangent", 22, 1, 23, 2),
    Sketcher.Constraint("Tangent", 23, 1, 24, 2),
    Sketcher.Constraint("Tangent", 24, 1, 22, 2),
    Sketcher.Constraint("Tangent", 25, 1, 26, 2),
    Sketcher.Constraint("Tangent", 26, 1, 27, 2),
    Sketcher.Constraint("Tangent", 27, 1, 25, 2),
    Sketcher.Constraint("Tangent", 28, 1, 29, 2),
    Sketcher.Constraint("Tangent", 29, 1, 30, 2),
    Sketcher.Constraint("Tangent", 30, 1, 28, 2),
    Sketcher.Constraint("Coincident", 19, 3, 15, 3),
    Sketcher.Constraint("Coincident", 22, 3, 2, 3),
    Sketcher.Constraint("Coincident", 25, 3, 11, 3),
    Sketcher.Constraint("Coincident", 28, 3, 7, 3),
    Sketcher.Constraint("Equal", 2, 3),
    Sketcher.Constraint("Equal", 3, 7),
    Sketcher.Constraint("Equal", 7, 8),
    Sketcher.Constraint("Equal", 8, 11),
    Sketcher.Constraint("Equal", 11, 12),
    Sketcher.Constraint("Equal", 12, 15),
    Sketcher.Constraint("Equal", 15, 16),
    Sketcher.Constraint("Equal", 17, 18),
    Sketcher.Constraint("Equal", 21, 22),
    Sketcher.Constraint("Equal", 24, 25),
    Sketcher.Constraint("Equal", 27, 28),
    Sketcher.Constraint("Symmetric", 2, 3, 11, 3, -1, 1),
    Sketcher.Constraint("Symmetric", 7, 3, 15, 3, -1, 1),
    Sketcher.Constraint("Symmetric", 0, 2, 9, 2, -1, 1),
    Sketcher.Constraint("Symmetric", 5, 2, 13, 2, -1, 1),
    Sketcher.Constraint("Symmetric", 7, 3, 11, 3, -2),
    Sketcher.Constraint("PointOnObject", 0, 2, -2),
    Sketcher.Constraint("PointOnObject", 5, 2, -1),
    Sketcher.Constraint("Parallel", 1, 4),
    Sketcher.Constraint("Parallel", 4, 5),
    Sketcher.Constraint("Horizontal", 17, 3, 18, 3),
    Sketcher.Constraint("Horizontal", 24, 3, 2, 2),
    Sketcher.Constraint("Horizontal", 30, 3, 7, 2),
    Sketcher.Constraint("Horizontal", 7, 2, 11, 2),
    Sketcher.Constraint("Horizontal", 2, 2, 15, 2),
    Sketcher.Constraint("Horizontal", 15, 2, 21, 1),
    Sketcher.Constraint("Horizontal", 20, 1, 22, 1),
    Sketcher.Constraint("Horizontal", 21, 1, 23, 1),
    Sketcher.Constraint("Horizontal", 19, 1, 24, 1),
    Sketcher.Constraint("Horizontal", 11, 2, 27, 1),
    Sketcher.Constraint("Horizontal", 26, 1, 28, 1),
    Sketcher.Constraint("Horizontal", 27, 1, 29, 1),
    Sketcher.Constraint("Horizontal", 25, 1, 30, 1),
    Sketcher.Constraint("Vertical", 20, 1, 25, 1),
    Sketcher.Constraint("Vertical", 19, 1, 26, 1),
    Sketcher.Constraint("Radius", 19, Q("0.09 in")),
    Sketcher.Constraint("DistanceY", 2, 3, -1, 1, Q("3 in")),
    Sketcher.Constraint("Radius", 2, Q("0.2473 in")),
    Sketcher.Constraint("DistanceX", 11, 3, 7, 3, Q("4.5 in")),
    Sketcher.Constraint("Diameter", 17, Q("3 mm")),
    Sketcher.Constraint("DistanceX", 19, 1, -1, 1, Q("2.178 in")),
    Sketcher.Constraint("DistanceX", 20, 1, -1, 1, Q("2.322 in")),
    Sketcher.Constraint("DistanceX", 17, 3, -1, 1, Q("45.5 mm")),
    Sketcher.Constraint("DistanceY", 17, 3, -1, 1, Q("68.6 mm")),
    Sketcher.Constraint("Distance", 5, Q("0.64417 mm")),
    Sketcher.Constraint("DistanceX", -1, 1, 18, 3, Q("45.49999 mm")),
    Sketcher.Constraint("DistanceY", 1, 2, -1, 1, Q("79.968852 mm")),
])
sketch15.setExpression("Constraints[68]", "Params.sketch15_radius")
pad2 = body.newObject("PartDesign::Pad", "Pad001")
pad2.Profile = sketch15
pad2.setExpression("Length", "Params.pad2_length")
pad2.Reversed = True

# Sketch on XZ plane
sketch16 = body.newObject("Sketcher::SketchObject", "Sketch015")
sketch16.AttachmentSupport = (doc.getObject("XZ_Plane"), [""])
sketch16.MapMode = "FlatFace"
sketch16.addGeometry([
    Part.ArcOfCircle(Part.Circle(V(45.5, -68.6, 0), V(0, 0, 1), 4.8), math.radians(0), math.radians(145)),  # 0
    Part.LineSegment(V(41.6, -65.9, 0), V(47, -73.1, 0)),  # 1
    Part.ArcOfCircle(Part.Circle(V(45.5, -68.6, 0), V(0, 0, 1), 4.8), math.radians(-72), math.radians(0)),  # 2
    Part.Circle(V(45.5, -68.6, 0), V(0, 0, 1), 1.5),  # 3
    Part.ArcOfCircle(Part.Circle(V(-45.5, -68.6, 0), V(0, 0, 1), 4.8), math.radians(34), math.radians(252)),  # 4
    Part.LineSegment(V(-47, -73.1, 0), V(-41.6, -65.9, 0)),  # 5
    Part.Circle(V(-45.5, -68.6, 0), V(0, 0, 1), 1.5),  # 6
], False)
sketch16.addConstraint([
    Sketcher.Constraint("Coincident", 0, 2, 1, 1),
    Sketcher.Constraint("Coincident", 1, 2, 2, 1),
    Sketcher.Constraint("Tangent", 2, 2, 0, 1),
    Sketcher.Constraint("Coincident", 4, 1, 5, 2),
    Sketcher.Constraint("Coincident", 5, 1, 4, 2),
    Sketcher.Constraint("Coincident", 3, 3, 0, 3),
    Sketcher.Constraint("Coincident", 6, 3, 4, 3),
    Sketcher.Constraint("Equal", 0, 2),
    Sketcher.Constraint("Equal", 2, 4),
    Sketcher.Constraint("Equal", 3, 6),
    Sketcher.Constraint("Symmetric", 0, 2, 4, 1, -2),
    Sketcher.Constraint("Symmetric", 1, 2, 5, 1, -2),
    Sketcher.Constraint("Horizontal", 6, 3, 2, 2),
    Sketcher.Constraint("Radius", 0, Q("0.1875 in")),
    Sketcher.Constraint("Diameter", 3, Q("3 mm")),
    Sketcher.Constraint("Distance", 1, Q("9.025899 mm")),
    Sketcher.Constraint("DistanceY", 0, 3, -1, 1, Q("68.6 mm")),
    Sketcher.Constraint("DistanceX", 4, 3, -1, 1, Q("45.5 mm")),
    Sketcher.Constraint("DistanceX", 0, 2, 2, 3, Q("3.924899 mm")),
])
sketch16.setExpression("Constraints[13]", "Params.sketch16_radius")
pocket14 = body.newObject("PartDesign::Pocket", "Pocket013")
pocket14.Profile = sketch16
pocket14.setExpression("Length", "Params.pocket14_length")
pocket14.Reversed = True
doc.recompute()

fillet = body.newObject("PartDesign::Fillet", "Fillet")
fillet.Base = (pocket14, edges_at(pocket14, [
    (41.575, -1.587, -65.902),
    (46.991, -1.587, -73.123),
    (-46.991, -1.587, -73.123),
    (-41.575, -1.587, -65.902),
]))
fillet.setExpression("Radius", "Params.fillet_radius")

doc.recompute()
